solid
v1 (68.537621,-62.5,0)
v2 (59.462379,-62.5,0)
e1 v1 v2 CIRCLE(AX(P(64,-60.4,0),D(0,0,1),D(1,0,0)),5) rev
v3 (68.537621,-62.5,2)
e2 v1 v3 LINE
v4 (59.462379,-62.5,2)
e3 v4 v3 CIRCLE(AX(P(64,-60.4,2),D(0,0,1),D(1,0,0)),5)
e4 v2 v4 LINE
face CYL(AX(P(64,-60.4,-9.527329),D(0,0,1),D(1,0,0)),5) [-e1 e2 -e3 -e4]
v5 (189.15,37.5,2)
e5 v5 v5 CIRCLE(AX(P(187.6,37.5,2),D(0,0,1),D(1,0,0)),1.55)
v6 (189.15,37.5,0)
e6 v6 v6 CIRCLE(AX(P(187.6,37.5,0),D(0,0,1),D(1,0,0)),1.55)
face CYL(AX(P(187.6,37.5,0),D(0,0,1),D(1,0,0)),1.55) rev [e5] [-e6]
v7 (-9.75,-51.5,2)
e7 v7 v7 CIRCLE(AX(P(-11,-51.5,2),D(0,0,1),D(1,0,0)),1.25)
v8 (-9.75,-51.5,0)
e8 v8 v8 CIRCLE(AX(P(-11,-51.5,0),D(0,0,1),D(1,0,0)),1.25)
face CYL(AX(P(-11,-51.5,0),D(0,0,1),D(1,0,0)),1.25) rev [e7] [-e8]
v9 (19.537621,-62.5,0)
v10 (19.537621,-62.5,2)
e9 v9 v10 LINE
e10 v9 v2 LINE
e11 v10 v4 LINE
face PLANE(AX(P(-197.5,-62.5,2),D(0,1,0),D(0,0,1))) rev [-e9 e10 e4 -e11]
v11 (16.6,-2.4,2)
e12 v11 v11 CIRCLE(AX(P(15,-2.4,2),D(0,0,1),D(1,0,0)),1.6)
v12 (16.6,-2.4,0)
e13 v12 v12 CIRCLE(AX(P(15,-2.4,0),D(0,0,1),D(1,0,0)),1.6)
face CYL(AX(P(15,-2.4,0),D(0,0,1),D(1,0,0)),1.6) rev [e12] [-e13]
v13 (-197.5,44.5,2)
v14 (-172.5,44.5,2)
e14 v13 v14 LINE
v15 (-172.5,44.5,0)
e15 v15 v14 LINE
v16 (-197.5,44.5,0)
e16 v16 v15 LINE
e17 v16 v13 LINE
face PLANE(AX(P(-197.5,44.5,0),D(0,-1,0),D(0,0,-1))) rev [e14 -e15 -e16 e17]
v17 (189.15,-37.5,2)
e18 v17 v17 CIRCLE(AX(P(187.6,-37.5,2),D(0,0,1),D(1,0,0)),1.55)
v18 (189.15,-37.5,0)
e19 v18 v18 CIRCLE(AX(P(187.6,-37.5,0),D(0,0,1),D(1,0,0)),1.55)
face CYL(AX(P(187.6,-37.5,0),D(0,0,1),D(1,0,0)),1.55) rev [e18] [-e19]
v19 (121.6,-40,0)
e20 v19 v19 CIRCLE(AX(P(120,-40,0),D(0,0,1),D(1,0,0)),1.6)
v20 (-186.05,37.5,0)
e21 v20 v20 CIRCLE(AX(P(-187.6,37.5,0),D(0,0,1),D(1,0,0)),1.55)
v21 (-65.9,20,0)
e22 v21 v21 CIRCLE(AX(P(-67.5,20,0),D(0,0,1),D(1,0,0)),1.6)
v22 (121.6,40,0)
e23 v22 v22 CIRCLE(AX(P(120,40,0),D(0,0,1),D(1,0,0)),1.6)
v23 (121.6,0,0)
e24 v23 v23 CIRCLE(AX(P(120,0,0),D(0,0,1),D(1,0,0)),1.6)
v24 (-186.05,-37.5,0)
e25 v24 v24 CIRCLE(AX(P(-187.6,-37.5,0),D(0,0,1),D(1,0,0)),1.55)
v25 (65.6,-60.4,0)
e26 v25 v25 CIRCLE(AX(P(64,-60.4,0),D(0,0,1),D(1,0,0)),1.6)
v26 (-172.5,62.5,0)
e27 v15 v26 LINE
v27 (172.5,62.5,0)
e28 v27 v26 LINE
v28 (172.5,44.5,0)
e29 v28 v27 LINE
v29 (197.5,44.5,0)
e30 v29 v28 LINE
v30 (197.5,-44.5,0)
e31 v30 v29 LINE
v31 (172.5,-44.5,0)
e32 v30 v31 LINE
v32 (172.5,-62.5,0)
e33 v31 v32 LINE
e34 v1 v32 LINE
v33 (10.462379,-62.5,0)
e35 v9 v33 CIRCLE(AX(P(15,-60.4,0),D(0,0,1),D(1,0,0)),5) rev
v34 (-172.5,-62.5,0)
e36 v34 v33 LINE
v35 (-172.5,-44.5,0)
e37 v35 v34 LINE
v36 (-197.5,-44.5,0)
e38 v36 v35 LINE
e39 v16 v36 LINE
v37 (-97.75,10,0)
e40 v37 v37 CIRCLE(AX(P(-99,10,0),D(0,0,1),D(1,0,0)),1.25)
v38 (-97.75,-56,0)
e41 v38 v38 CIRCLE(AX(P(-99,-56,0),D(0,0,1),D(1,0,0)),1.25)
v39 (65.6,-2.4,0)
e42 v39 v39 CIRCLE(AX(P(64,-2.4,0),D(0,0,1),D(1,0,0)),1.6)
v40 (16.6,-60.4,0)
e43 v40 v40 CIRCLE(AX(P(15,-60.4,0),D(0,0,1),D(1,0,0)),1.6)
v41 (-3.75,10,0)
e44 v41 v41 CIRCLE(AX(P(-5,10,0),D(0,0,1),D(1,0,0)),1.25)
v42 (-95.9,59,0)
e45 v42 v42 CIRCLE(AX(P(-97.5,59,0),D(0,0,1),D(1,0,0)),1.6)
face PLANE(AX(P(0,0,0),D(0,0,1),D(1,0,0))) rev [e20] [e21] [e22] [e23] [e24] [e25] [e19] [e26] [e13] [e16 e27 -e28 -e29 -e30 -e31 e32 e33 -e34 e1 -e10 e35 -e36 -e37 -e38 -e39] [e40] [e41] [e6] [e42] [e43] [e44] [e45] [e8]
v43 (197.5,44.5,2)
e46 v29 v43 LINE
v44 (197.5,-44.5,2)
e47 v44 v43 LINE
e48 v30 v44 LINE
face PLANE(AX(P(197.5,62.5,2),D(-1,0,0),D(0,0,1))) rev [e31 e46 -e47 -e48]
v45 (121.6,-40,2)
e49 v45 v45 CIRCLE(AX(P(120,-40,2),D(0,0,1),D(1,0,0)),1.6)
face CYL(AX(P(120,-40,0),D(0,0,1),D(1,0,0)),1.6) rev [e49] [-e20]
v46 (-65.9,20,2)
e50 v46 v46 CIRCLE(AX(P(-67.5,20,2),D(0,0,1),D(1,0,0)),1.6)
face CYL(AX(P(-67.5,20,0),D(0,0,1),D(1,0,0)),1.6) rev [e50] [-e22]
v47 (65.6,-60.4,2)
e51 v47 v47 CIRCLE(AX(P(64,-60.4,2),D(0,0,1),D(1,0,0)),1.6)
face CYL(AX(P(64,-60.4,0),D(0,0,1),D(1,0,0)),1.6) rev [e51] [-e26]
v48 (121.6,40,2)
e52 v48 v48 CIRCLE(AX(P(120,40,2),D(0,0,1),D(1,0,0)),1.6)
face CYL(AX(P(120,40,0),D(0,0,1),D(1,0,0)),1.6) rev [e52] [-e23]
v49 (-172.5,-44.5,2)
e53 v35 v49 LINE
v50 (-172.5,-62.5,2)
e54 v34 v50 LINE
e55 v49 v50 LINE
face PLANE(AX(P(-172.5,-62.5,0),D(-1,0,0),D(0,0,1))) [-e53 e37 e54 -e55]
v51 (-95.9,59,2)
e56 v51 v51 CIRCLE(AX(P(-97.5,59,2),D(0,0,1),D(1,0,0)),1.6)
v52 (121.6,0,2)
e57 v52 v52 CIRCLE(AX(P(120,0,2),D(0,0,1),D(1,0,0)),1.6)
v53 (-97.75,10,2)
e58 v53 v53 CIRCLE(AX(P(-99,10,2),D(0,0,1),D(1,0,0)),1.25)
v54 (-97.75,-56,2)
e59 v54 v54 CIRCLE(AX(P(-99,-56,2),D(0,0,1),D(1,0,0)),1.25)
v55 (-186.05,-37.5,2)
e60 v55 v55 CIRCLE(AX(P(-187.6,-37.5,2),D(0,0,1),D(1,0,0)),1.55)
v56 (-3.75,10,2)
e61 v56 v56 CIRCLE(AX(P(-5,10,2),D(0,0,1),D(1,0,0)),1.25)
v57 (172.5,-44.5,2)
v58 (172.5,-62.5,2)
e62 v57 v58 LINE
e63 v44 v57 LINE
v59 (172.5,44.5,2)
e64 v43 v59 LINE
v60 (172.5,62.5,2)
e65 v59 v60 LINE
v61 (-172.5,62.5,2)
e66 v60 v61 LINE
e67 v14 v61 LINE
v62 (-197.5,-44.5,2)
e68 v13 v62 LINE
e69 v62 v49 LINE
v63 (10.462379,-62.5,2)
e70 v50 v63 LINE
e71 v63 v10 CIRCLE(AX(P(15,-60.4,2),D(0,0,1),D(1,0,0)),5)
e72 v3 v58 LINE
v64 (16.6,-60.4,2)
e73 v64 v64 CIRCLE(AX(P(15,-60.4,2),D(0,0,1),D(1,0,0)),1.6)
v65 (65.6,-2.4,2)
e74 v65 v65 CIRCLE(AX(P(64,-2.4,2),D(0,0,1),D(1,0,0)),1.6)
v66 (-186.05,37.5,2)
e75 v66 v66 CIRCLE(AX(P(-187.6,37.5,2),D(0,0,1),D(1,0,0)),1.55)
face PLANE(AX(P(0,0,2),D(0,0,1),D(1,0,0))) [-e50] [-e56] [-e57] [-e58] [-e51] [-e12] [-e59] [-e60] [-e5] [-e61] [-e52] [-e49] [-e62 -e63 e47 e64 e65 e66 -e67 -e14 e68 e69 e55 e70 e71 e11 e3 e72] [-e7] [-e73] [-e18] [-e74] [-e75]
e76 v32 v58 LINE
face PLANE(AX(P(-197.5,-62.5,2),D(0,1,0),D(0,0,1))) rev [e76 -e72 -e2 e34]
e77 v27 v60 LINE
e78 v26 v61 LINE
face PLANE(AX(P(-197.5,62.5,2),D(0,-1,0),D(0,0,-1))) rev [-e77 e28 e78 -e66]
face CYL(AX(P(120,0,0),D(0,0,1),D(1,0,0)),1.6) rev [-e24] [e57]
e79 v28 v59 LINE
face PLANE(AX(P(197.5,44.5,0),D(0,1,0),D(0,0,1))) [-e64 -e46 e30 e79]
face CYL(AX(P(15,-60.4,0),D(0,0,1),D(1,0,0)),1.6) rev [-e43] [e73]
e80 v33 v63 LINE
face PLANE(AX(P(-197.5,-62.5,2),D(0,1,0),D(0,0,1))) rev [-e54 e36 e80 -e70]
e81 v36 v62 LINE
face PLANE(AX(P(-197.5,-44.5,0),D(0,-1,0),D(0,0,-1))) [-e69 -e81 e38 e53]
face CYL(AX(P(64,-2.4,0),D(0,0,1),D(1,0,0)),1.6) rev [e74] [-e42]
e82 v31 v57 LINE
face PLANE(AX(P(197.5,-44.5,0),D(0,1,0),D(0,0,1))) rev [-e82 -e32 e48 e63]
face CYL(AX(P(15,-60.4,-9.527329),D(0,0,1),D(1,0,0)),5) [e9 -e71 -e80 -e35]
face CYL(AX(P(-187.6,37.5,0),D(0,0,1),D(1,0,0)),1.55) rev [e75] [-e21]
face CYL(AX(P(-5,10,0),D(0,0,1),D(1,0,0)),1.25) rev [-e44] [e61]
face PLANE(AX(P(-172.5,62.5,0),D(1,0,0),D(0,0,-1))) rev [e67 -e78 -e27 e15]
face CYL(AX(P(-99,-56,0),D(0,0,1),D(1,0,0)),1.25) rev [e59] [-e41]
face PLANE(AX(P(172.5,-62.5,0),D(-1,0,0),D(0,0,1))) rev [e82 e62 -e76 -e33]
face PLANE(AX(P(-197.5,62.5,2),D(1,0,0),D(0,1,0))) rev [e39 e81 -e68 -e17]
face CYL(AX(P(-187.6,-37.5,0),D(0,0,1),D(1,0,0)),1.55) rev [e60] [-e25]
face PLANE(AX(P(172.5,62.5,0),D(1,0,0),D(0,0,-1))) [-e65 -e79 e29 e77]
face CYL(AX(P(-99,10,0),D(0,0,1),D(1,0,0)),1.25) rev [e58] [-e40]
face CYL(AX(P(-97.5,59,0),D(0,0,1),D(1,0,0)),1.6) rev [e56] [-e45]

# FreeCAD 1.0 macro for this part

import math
import FreeCAD as App
import Part
import Sketcher
from FreeCAD import Vector


def add_polygon(sketch, points):
    """Adds a closed chain of lines whose ends are joined by coincident constraints."""
    first, n = sketch.GeometryCount, len(points)
    for a, b in zip(points, points[1:] + points[:1]):
        sketch.addGeometry(Part.LineSegment(App.Vector(*a, 0), App.Vector(*b, 0)), False)
    for i in range(n):
        sketch.addConstraint(Sketcher.Constraint("Coincident", first + i, 2, first + (i + 1) % n, 1))

doc = App.newDocument("Part")
body = doc.addObject("PartDesign::Body", "Body")

sketch1 = body.newObject("Sketcher::SketchObject", "Sketch")
sketch1.AttachmentSupport = (doc.getObject("XY_Plane"), [""])
sketch1.MapMode = "FlatFace"
add_polygon(sketch1, [(-198, 62), (-198, -62), (198, -62), (198, 62)])
sketch1.addConstraint([
    Sketcher.Constraint("Vertical", 0),
    Sketcher.Constraint("Horizontal", 1),
    Sketcher.Constraint("Vertical", 2),
    Sketcher.Constraint("Horizontal", 3),
    Sketcher.Constraint("Symmetric", 0, 2, 2, 2, -1, 1),
    Sketcher.Constraint("DistanceX", 1, 1, 1, 2, 395.0),
    Sketcher.Constraint("DistanceY", 0, 2, 0, 1, 125.0),
])
pad1 = body.newObject("PartDesign::Pad", "Pad")
pad1.Profile = sketch1
pad1.Length = 2

sketch2 = body.newObject("Sketcher::SketchObject", "Sketch001")
sketch2.AttachmentSupport = (doc.getObject("XY_Plane"), [""])
sketch2.MapMode = "FlatFace"
sketch2.AttachmentOffset = App.Placement(Vector(0, 0, 2), App.Rotation())
sketch2.addGeometry([
    Part.Circle(Vector(-187.6, 37.5, 0), Vector(0, 0, 1), 1.6),
    Part.Circle(Vector(-187.6, -37.5, 0), Vector(0, 0, 1), 1.6),
    Part.Circle(Vector(187.6, 37.5, 0), Vector(0, 0, 1), 1.6),
    Part.Circle(Vector(187.6, -37.5, 0), Vector(0, 0, 1), 1.6),
], False)
sketch2.addConstraint([
    Sketcher.Constraint("Equal", 0, 1),
    Sketcher.Constraint("Equal", 1, 2),
    Sketcher.Constraint("Equal", 2, 3),
    Sketcher.Constraint("Symmetric", 1, 3, 2, 3, -1, 1),
    Sketcher.Constraint("Symmetric", 0, 3, 3, 3, -1, 1),
    Sketcher.Constraint("Symmetric", 0, 3, 2, 3, -2),
    Sketcher.Constraint("Diameter", 0, 3.1),
    Sketcher.Constraint("DistanceY", 1, 3, 0, 3, 75.0),
    Sketcher.Constraint("DistanceX", 0, 3, -1, 1, 187.6),
])
pocket1 = body.newObject("PartDesign::Pocket", "Pocket")
pocket1.Profile = sketch2
pocket1.Type = "ThroughAll"

sketch3 = body.newObject("Sketcher::SketchObject", "Sketch002")
sketch3.AttachmentSupport = (doc.getObject("XY_Plane"), [""])
sketch3.MapMode = "FlatFace"
sketch3.AttachmentOffset = App.Placement(Vector(0, 0, 2), App.Rotation())
add_polygon(sketch3, [(-198, 62), (-198, 44), (-172, 44), (-172, 62)])
sketch3.addConstraint([
    Sketcher.Constraint("Vertical", 0),
    Sketcher.Constraint("Horizontal", 1),
    Sketcher.Constraint("Vertical", 2),
    Sketcher.Constraint("Horizontal", 3),
    Sketcher.Constraint("DistanceX", 1, 1, 1, 2, 25.0),
    Sketcher.Constraint("DistanceY", 0, 2, 0, 1, 18.0),
    Sketcher.Constraint("DistanceX", 0, 2, -1, 1, 197.5),
    Sketcher.Constraint("DistanceY", -1, 1, 0, 2, 44.5),
])
pocket2 = body.newObject("PartDesign::Pocket", "Pocket001")
pocket2.Profile = sketch3
pocket2.Type = "ThroughAll"
doc.recompute()

mirrored = body.newObject("PartDesign::Mirrored", "Mirrored")
mirrored.Originals = [pocket2]
mirrored.MirrorPlane = (doc.getObject("XZ_Plane"), [""])
body.Tip = mirrored
doc.recompute()

mirrored2 = body.newObject("PartDesign::Mirrored", "Mirrored001")
mirrored2.Originals = [pocket2]
mirrored2.MirrorPlane = (doc.getObject("YZ_Plane"), [""])
body.Tip = mirrored2

sketch4 = body.newObject("Sketcher::SketchObject", "Sketch003")
sketch4.AttachmentSupport = (doc.getObject("XY_Plane"), [""])
sketch4.MapMode = "FlatFace"
sketch4.AttachmentOffset = App.Placement(Vector(0, 0, 2), App.Rotation())
add_polygon(sketch4, [(198, -62), (198, -44), (172, -44), (172, -62)])
sketch4.addConstraint([
    Sketcher.Constraint("Vertical", 0),
    Sketcher.Constraint("Horizontal", 1),
    Sketcher.Constraint("Vertical", 2),
    Sketcher.Constraint("Horizontal", 3),
    Sketcher.Constraint("DistanceX", 1, 2, 1, 1, 25.0),
    Sketcher.Constraint("DistanceY", 0, 1, 0, 2, 18.0),
    Sketcher.Constraint("DistanceX", -1, 1, 0, 2, 197.5),
    Sketcher.Constraint("DistanceY", 0, 2, -1, 1, 44.5),
])
pocket3 = body.newObject("PartDesign::Pocket", "Pocket002")
pocket3.Profile = sketch4
pocket3.Type = "ThroughAll"

sketch5 = body.newObject("Sketcher::SketchObject", "Sketch004")
sketch5.AttachmentSupport = (doc.getObject("XY_Plane"), [""])
sketch5.MapMode = "FlatFace"
sketch5.AttachmentOffset = App.Placement(Vector(0, 0, 2), App.Rotation())
sketch5.addGeometry([
    Part.Circle(Vector(-99, 10, 0), Vector(0, 0, 1), 1.2),
    Part.Circle(Vector(-99, -56, 0), Vector(0, 0, 1), 1.2),
    Part.Circle(Vector(-5, 10, 0), Vector(0, 0, 1), 1.2),
    Part.Circle(Vector(-11, -51.5, 0), Vector(0, 0, 1), 1.2),
], False)
sketch5.addConstraint([
    Sketcher.Constraint("Equal", 0, 1),
    Sketcher.Constraint("Equal", 1, 2),
    Sketcher.Constraint("Equal", 2, 3),
    Sketcher.Constraint("Horizontal", 0, 3, 2, 3),
    Sketcher.Constraint("Vertical", 0, 3, 1, 3),
    Sketcher.Constraint("Diameter", 0, 2.5),
    Sketcher.Constraint("DistanceX", 0, 3, -1, 1, 99.0),
    Sketcher.Constraint("DistanceY", -1, 1, 0, 3, 10.0),
    Sketcher.Constraint("DistanceY", 1, 3, -1, 1, 56.0),
    Sketcher.Constraint("DistanceX", 2, 3, -1, 1, 5.0),
    Sketcher.Constraint("DistanceX", 3, 3, -1, 1, 11.0),
    Sketcher.Constraint("DistanceY", 3, 3, -1, 1, 51.5),
])
pocket4 = body.newObject("PartDesign::Pocket", "Pocket003")
pocket4.Profile = sketch5
pocket4.Type = "ThroughAll"

sketch6 = body.newObject("Sketcher::SketchObject", "Sketch005")
sketch6.AttachmentSupport = (doc.getObject("XY_Plane"), [""])
sketch6.MapMode = "FlatFace"
sketch6.AttachmentOffset = App.Placement(Vector(0, 0, 2), App.Rotation())
sketch6.addGeometry([
    Part.Circle(Vector(15, -2.4, 0), Vector(0, 0, 1), 1.6),
    Part.Circle(Vector(15, -60.4, 0), Vector(0, 0, 1), 1.6),
    Part.Circle(Vector(64, -2.4, 0), Vector(0, 0, 1), 1.6),
    Part.Circle(Vector(64, -60.4, 0), Vector(0, 0, 1), 1.6),
], False)
sketch6.addConstraint([
    Sketcher.Constraint("Equal", 0, 1),
    Sketcher.Constraint("Equal", 1, 2),
    Sketcher.Constraint("Equal", 2, 3),
    Sketcher.Constraint("Horizontal", 0, 3, 2, 3),
    Sketcher.Constraint("Horizontal", 1, 3, 3, 3),
    Sketcher.Constraint("Vertical", 0, 3, 1, 3),
    Sketcher.Constraint("Vertical", 2, 3, 3, 3),
    Sketcher.Constraint("Diameter", 0, 3.2),
    Sketcher.Constraint("DistanceX", -1, 1, 0, 3, 15.0),
    Sketcher.Constraint("DistanceX", -1, 1, 2, 3, 64.0),
    Sketcher.Constraint("DistanceY", 1, 3, 0, 3, 58.0),
    Sketcher.Constraint("DistanceY", 0, 3, -1, 1, 2.4),
])
pocket5 = body.newObject("PartDesign::Pocket", "Pocket004")
pocket5.Profile = sketch6
pocket5.Type = "ThroughAll"

sketch7 = body.newObject("Sketcher::SketchObject", "Sketch006")
sketch7.AttachmentSupport = (doc.getObject("XY_Plane"), [""])
sketch7.MapMode = "FlatFace"
sketch7.AttachmentOffset = App.Placement(Vector(0, 0, 2), App.Rotation())
sketch7.addGeometry([
    Part.Circle(Vector(-97.5, 59, 0), Vector(0, 0, 1), 1.6),
    Part.Circle(Vector(-67.5, 20, 0), Vector(0, 0, 1), 1.6),
], False)
sketch7.addConstraint([
    Sketcher.Constraint("Equal", 0, 1),
    Sketcher.Constraint("Diameter", 0, 3.2),
    Sketcher.Constraint("DistanceY", -1, 1, 0, 3, 59.0),
    Sketcher.Constraint("DistanceY", -1, 1, 1, 3, 20.0),
    Sketcher.Constraint("DistanceX", 0, 3, 1, 3, 30.0),
    Sketcher.Constraint("DistanceX", 0, 3, -1, 1, 97.5),
])
pocket6 = body.newObject("PartDesign::Pocket", "Pocket005")
pocket6.Profile = sketch7
pocket6.Type = "ThroughAll"

sketch8 = body.newObject("Sketcher::SketchObject", "Sketch007")
sketch8.AttachmentSupport = (doc.getObject("XY_Plane"), [""])
sketch8.MapMode = "FlatFace"
sketch8.AttachmentOffset = App.Placement(Vector(0, 0, 2), App.Rotation())
sketch8.addGeometry([
    Part.Circle(Vector(120, 0, 0), Vector(0, 0, 1), 1.6),
    Part.Circle(Vector(120, 40, 0), Vector(0, 0, 1), 1.6),
    Part.Circle(Vector(120, -40, 0), Vector(0, 0, 1), 1.6),
], False)
sketch8.addConstraint([
    Sketcher.Constraint("Equal", 0, 1),
    Sketcher.Constraint("Equal", 1, 2),
    Sketcher.Constraint("Symmetric", 1, 3, 2, 3, -1),
    Sketcher.Constraint("PointOnObject", 0, 3, -1),
    Sketcher.Constraint("Vertical", 0, 3, 1, 3),
    Sketcher.Constraint("Diameter", 0, 3.2),
    Sketcher.Constraint("DistanceX", -1, 1, 0, 3, 120.0),
    Sketcher.Constraint("DistanceY", -1, 1, 1, 3, 40.0),
])
pocket7 = body.newObject("PartDesign::Pocket", "Pocket006")
pocket7.Profile = sketch8
pocket7.Type = "ThroughAll"

sketch9 = body.newObject("Sketcher::SketchObject", "Sketch008")
sketch9.AttachmentSupport = (doc.getObject("XY_Plane"), [""])
sketch9.MapMode = "FlatFace"
sketch9.AttachmentOffset = App.Placement(Vector(0, 0, 2), App.Rotation())
sketch9.addGeometry([
    Part.LineSegment(Vector(20, -62, 0), Vector(10, -62, 0)),
    Part.ArcOfCircle(Part.Circle(Vector(15, -60, 0), Vector(0, 0, 1), 5), math.radians(-155), math.radians(-25)),
    Part.LineSegment(Vector(69, -62, 0), Vector(59, -62, 0)),
    Part.ArcOfCircle(Part.Circle(Vector(64, -60, 0), Vector(0, 0, 1), 5), math.radians(-155), math.radians(-25)),
], False)
sketch9.addConstraint([
    Sketcher.Constraint("Coincident", 0, 1, 1, 2),
    Sketcher.Constraint("Coincident", 1, 1, 0, 2),
    Sketcher.Constraint("Coincident", 2, 1, 3, 2),
    Sketcher.Constraint("Coincident", 3, 1, 2, 2),
    Sketcher.Constraint("Horizontal", 0),
    Sketcher.Constraint("Horizontal", 2),
    Sketcher.Constraint("Equal", 1, 3),
    Sketcher.Constraint("Horizontal", 1, 3, 3, 3),
    Sketcher.Constraint("Horizontal", 1, 1, 2, 1),
    Sketcher.Constraint("Radius", 1, 5.0),
    Sketcher.Constraint("DistanceX", -1, 1, 1, 3, 15.0),
    Sketcher.Constraint("DistanceX", -1, 1, 3, 3, 64.0),
    Sketcher.Constraint("DistanceY", 1, 3, -1, 1, 60.4),
    Sketcher.Constraint("DistanceY", 0, 1, -1, 1, 62.5),
])
pad2 = body.newObject("PartDesign::Pad", "Pad001")
pad2.Profile = sketch9
pad2.Length = 2
pad2.Reversed = True

doc.recompute()
